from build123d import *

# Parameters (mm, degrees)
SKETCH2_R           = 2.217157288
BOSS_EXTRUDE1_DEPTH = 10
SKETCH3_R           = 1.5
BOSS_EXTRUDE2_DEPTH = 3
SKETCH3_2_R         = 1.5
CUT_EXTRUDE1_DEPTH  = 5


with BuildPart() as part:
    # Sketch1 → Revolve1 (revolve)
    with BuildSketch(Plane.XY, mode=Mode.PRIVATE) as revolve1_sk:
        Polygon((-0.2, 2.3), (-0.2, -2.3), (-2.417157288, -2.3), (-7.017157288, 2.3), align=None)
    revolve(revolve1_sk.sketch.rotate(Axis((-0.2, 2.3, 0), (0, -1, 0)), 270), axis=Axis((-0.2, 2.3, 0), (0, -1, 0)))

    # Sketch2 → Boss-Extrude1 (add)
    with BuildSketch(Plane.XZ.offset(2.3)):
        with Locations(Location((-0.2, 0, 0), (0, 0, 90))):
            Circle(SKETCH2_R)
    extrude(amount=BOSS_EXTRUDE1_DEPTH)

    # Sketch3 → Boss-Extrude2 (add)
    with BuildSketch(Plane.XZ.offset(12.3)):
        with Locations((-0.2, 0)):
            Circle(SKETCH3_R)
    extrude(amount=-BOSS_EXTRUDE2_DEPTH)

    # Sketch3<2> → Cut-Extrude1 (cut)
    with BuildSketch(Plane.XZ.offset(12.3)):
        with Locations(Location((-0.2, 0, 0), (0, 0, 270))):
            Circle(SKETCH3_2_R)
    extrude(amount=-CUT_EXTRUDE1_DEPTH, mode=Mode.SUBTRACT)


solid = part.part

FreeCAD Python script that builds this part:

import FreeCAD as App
import Part
import Sketcher
Q = App.Units.Quantity


def add_polygon(sketch, points):
    """Adds a closed chain of lines whose ends are joined by coincident constraints."""
    first, n = sketch.GeometryCount, len(points)
    for a, b in zip(points, points[1:] + points[:1]):
        sketch.addGeometry(Part.LineSegment(App.Vector(*a, 0), App.Vector(*b, 0)), False)
    for i in range(n):
        sketch.addConstraint(Sketcher.Constraint("Coincident", first + i, 2, first + (i + 1) % n, 1))

doc = App.newDocument("Part")
body = doc.addObject("PartDesign::Body", "Body")

# Sketch on XY plane
sketch1 = body.newObject("Sketcher::SketchObject", "Sketch")
sketch1.AttachmentSupport = (doc.getObject("XY_Plane"), [""])
sketch1.MapMode = "FlatFace"
add_polygon(sketch1, [(-0.2, -2.3), (-0.2, 2.3), (-7.017157, 2.3), (-2.417157, -2.3)])  # lines 0-3
sketch1.addGeometry(Part.LineSegment(App.Vector(-0.2, 2.3, 0), App.Vector(-0.2, -2.3, 0)), True)  # axis
sketch1.addConstraint([
    Sketcher.Constraint("Vertical", 0),
    Sketcher.Constraint("Horizontal", 1),
    Sketcher.Constraint("Horizontal", 3),
    Sketcher.Constraint("Vertical", 4),
    Sketcher.Constraint("Coincident", 4, 1, 0, 2),
    Sketcher.Constraint("Horizontal", 2, 2, 4, 2),
    Sketcher.Constraint("Angle", 2, Q("-45 deg")),
    Sketcher.Constraint("DistanceY", 0, 1, 0, 2, Q("4.6 mm")),
    Sketcher.Constraint("DistanceX", 0, 2, -1, 1, Q("0.2 mm")),
    Sketcher.Constraint("DistanceY", -1, 1, 0, 2, Q("2.3 mm")),
    Sketcher.Constraint("DistanceX", 1, 2, 1, 1, Q("6.817157 mm")),
])
revolution = body.newObject("PartDesign::Revolution", "Revolution")
revolution.Profile = sketch1
revolution.ReferenceAxis = (sketch1, ["Axis0"])
revolution.Angle = 360

# Sketch on XZ plane
sketch2 = body.newObject("Sketcher::SketchObject", "Sketch001")
sketch2.AttachmentSupport = (doc.getObject("XZ_Plane"), [""])
sketch2.MapMode = "FlatFace"
sketch2.AttachmentOffset = App.Placement(App.Vector(0, 0, 2.3), App.Rotation())
sketch2.addGeometry(Part.Circle(App.Vector(-0.2, 0, 0), App.Vector(0, 0, 1), 2.217157), False)
sketch2.addConstraint([
    Sketcher.Constraint("PointOnObject", 0, 3, -1),
    Sketcher.Constraint("DistanceX", 0, 3, -1, 1, Q("0.2 mm")),
    Sketcher.Constraint("Diameter", 0, Q("4.434315 mm")),
])
pad1 = body.newObject("PartDesign::Pad", "Pad")
pad1.Profile = sketch2
pad1.Length = 10

# Sketch on XZ plane
sketch3 = body.newObject("Sketcher::SketchObject", "Sketch002")
sketch3.AttachmentSupport = (doc.getObject("XZ_Plane"), [""])
sketch3.MapMode = "FlatFace"
sketch3.AttachmentOffset = App.Placement(App.Vector(0, 0, 12.3), App.Rotation())
sketch3.addGeometry(Part.Circle(App.Vector(-0.2, 0, 0), App.Vector(0, 0, 1), 1.5), False)
sketch3.addConstraint([
    Sketcher.Constraint("PointOnObject", 0, 3, -1),
    Sketcher.Constraint("Diameter", 0, Q("3 mm")),
    Sketcher.Constraint("DistanceX", 0, 3, -1, 1, Q("0.2 mm")),
])
pad2 = body.newObject("PartDesign::Pad", "Pad001")
pad2.Profile = sketch3
pad2.Length = 3
pad2.Reversed = True

# Sketch on XZ plane
sketch4 = body.newObject("Sketcher::SketchObject", "Sketch003")
sketch4.AttachmentSupport = (doc.getObject("XZ_Plane"), [""])
sketch4.MapMode = "FlatFace"
sketch4.AttachmentOffset = App.Placement(App.Vector(0, 0, 12.3), App.Rotation())
sketch4.addGeometry(Part.Circle(App.Vector(-0.2, 0, 0), App.Vector(0, 0, 1), 1.5), False)
sketch4.addConstraint([
    Sketcher.Constraint("PointOnObject", 0, 3, -1),
    Sketcher.Constraint("Diameter", 0, Q("3 mm")),
    Sketcher.Constraint("DistanceX", 0, 3, -1, 1, Q("0.2 mm")),
])
pocket1 = body.newObject("PartDesign::Pocket", "Pocket")
pocket1.Profile = sketch4
pocket1.Length = 5

doc.recompute()
